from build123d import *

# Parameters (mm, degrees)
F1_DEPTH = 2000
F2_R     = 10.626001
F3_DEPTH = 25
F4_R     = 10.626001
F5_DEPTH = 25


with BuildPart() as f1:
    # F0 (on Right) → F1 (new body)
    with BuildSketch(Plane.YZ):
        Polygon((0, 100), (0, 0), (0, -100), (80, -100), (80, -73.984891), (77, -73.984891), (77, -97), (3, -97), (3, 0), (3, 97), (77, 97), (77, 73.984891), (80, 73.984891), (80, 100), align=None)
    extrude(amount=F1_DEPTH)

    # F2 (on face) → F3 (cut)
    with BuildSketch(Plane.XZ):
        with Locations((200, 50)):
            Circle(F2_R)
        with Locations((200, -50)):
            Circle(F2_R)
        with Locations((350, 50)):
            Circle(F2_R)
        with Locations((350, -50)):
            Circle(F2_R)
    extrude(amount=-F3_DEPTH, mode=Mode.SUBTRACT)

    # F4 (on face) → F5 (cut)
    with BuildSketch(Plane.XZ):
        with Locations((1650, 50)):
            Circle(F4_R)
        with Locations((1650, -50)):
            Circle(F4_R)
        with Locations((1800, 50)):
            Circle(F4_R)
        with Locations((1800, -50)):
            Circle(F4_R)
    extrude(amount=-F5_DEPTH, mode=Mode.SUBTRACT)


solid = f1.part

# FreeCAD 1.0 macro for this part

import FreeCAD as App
import Part
import Sketcher


def add_polygon(sketch, points):
    """Adds a closed chain of lines whose ends are joined by coincident constraints."""
    first, n = sketch.GeometryCount, len(points)
    for a, b in zip(points, points[1:] + points[:1]):
        sketch.addGeometry(Part.LineSegment(App.Vector(*a, 0), App.Vector(*b, 0)), False)
    for i in range(n):
        sketch.addConstraint(Sketcher.Constraint("Coincident", first + i, 2, first + (i + 1) % n, 1))

doc = App.newDocument("Part")
params = doc.addObject("Spreadsheet::Sheet", "Params")
for row, (alias, value) in enumerate([
    ("sketch1_width", "80 mm"),
    ("sketch1_width2", "3 mm"),
    ("sketch1_width3", "74 mm"),
    ("sketch1_height", "200 mm"),
    ("sketch1_height2", "194 mm"),
    ("pad1_length", "2000 mm"),
    ("pocket1_length", "25 mm"),
    ("pocket2_length", "25 mm"),
], start=1):
    params.set(f"A{row}", alias)
    params.set(f"B{row}", "=" + value)
    params.setAlias(f"B{row}", alias)

body = doc.addObject("PartDesign::Body", "Body")

# Sketch on YZ plane
sketch1 = body.newObject("Sketcher::SketchObject", "Sketch")
sketch1.AttachmentSupport = (doc.getObject("YZ_Plane"), [""])
sketch1.MapMode = "FlatFace"
add_polygon(sketch1, [(0, 100), (0, -100), (80, -100), (80, -74), (77, -74), (77, -97), (3, -97), (3, 97), (77, 97), (77, 74), (80, 74), (80, 100)])  # lines 0-11
sketch1.addConstraint([
    Sketcher.Constraint("Vertical", 0),
    Sketcher.Constraint("Horizontal", 1),
    Sketcher.Constraint("Vertical", 2),
    Sketcher.Constraint("Horizontal", 3),
    Sketcher.Constraint("Vertical", 4),
    Sketcher.Constraint("Horizontal", 5),
    Sketcher.Constraint("Vertical", 6),
    Sketcher.Constraint("Horizontal", 7),
    Sketcher.Constraint("Vertical", 8),
    Sketcher.Constraint("Horizontal", 9),
    Sketcher.Constraint("Vertical", 10),
    Sketcher.Constraint("Horizontal", 11),
    Sketcher.Constraint("Symmetric", 0, 2, 11, 2, -1, 1),
    Sketcher.Constraint("Symmetric", 4, 2, 7, 2, -1),
    Sketcher.Constraint("Symmetric", 2, 2, 9, 2, -1),
    Sketcher.Constraint("DistanceX", 1, 1, 1, 2, 80.0),
    Sketcher.Constraint("DistanceX", 3, 2, 3, 1, 3.0),
    Sketcher.Constraint("DistanceX", 5, 2, 5, 1, 74.0),
    Sketcher.Constraint("DistanceY", 0, 2, 0, 1, 200.0),
    Sketcher.Constraint("DistanceY", 6, 1, 6, 2, 194.0),
    Sketcher.Constraint("DistanceY", 2, 1, 2, 2, 26.015109),
])
sketch1.setExpression("Constraints[27]", "Params.sketch1_width")
sketch1.setExpression("Constraints[28]", "Params.sketch1_width2")
sketch1.setExpression("Constraints[29]", "Params.sketch1_width3")
sketch1.setExpression("Constraints[30]", "Params.sketch1_height")
sketch1.setExpression("Constraints[31]", "Params.sketch1_height2")
pad1 = body.newObject("PartDesign::Pad", "Pad")
pad1.Profile = sketch1
pad1.setExpression("Length", "Params.pad1_length")

# Sketch on XZ plane
sketch2 = body.newObject("Sketcher::SketchObject", "Sketch001")
sketch2.AttachmentSupport = (doc.getObject("XZ_Plane"), [""])
sketch2.MapMode = "FlatFace"
sketch2.addGeometry([
    Part.Circle(App.Vector(200, 50, 0), App.Vector(0, 0, 1), 11),
    Part.Circle(App.Vector(200, -50, 0), App.Vector(0, 0, 1), 11),
    Part.Circle(App.Vector(350, 50, 0), App.Vector(0, 0, 1), 11),
    Part.Circle(App.Vector(350, -50, 0), App.Vector(0, 0, 1), 11),
], False)
sketch2.addConstraint([
    Sketcher.Constraint("Equal", 0, 1),
    Sketcher.Constraint("Equal", 1, 2),
    Sketcher.Constraint("Equal", 2, 3),
    Sketcher.Constraint("Symmetric", 0, 3, 1, 3, -1),
    Sketcher.Constraint("Symmetric", 2, 3, 3, 3, -1),
    Sketcher.Constraint("Horizontal", 0, 3, 2, 3),
    Sketcher.Constraint("DistanceX", -1, 1, 0, 3, 200.0),
    Sketcher.Constraint("DistanceY", -1, 1, 0, 3, 50.0),
    Sketcher.Constraint("DistanceX", -1, 1, 2, 3, 350.0),
    Sketcher.Constraint("Diameter", 0, 21.252002),
])
pocket1 = body.newObject("PartDesign::Pocket", "Pocket")
pocket1.Profile = sketch2
pocket1.setExpression("Length", "Params.pocket1_length")

# Sketch on XZ plane
sketch3 = body.newObject("Sketcher::SketchObject", "Sketch002")
sketch3.AttachmentSupport = (doc.getObject("XZ_Plane"), [""])
sketch3.MapMode = "FlatFace"
sketch3.addGeometry([
    Part.Circle(App.Vector(1650, 50, 0), App.Vector(0, 0, 1), 11),
    Part.Circle(App.Vector(1650, -50, 0), App.Vector(0, 0, 1), 11),
    Part.Circle(App.Vector(1800, 50, 0), App.Vector(0, 0, 1), 11),
    Part.Circle(App.Vector(1800, -50, 0), App.Vector(0, 0, 1), 11),
], False)
sketch3.addConstraint([
    Sketcher.Constraint("Equal", 0, 1),
    Sketcher.Constraint("Equal", 1, 2),
    Sketcher.Constraint("Equal", 2, 3),
    Sketcher.Constraint("Symmetric", 0, 3, 1, 3, -1),
    Sketcher.Constraint("Symmetric", 2, 3, 3, 3, -1),
    Sketcher.Constraint("Horizontal", 0, 3, 2, 3),
    Sketcher.Constraint("DistanceX", -1, 1, 0, 3, 1650.0),
    Sketcher.Constraint("DistanceY", -1, 1, 0, 3, 50.0),
    Sketcher.Constraint("DistanceX", -1, 1, 2, 3, 1800.0),
    Sketcher.Constraint("Diameter", 0, 21.252002),
])
pocket2 = body.newObject("PartDesign::Pocket", "Pocket001")
pocket2.Profile = sketch3
pocket2.setExpression("Length", "Params.pocket2_length")

doc.recompute()
